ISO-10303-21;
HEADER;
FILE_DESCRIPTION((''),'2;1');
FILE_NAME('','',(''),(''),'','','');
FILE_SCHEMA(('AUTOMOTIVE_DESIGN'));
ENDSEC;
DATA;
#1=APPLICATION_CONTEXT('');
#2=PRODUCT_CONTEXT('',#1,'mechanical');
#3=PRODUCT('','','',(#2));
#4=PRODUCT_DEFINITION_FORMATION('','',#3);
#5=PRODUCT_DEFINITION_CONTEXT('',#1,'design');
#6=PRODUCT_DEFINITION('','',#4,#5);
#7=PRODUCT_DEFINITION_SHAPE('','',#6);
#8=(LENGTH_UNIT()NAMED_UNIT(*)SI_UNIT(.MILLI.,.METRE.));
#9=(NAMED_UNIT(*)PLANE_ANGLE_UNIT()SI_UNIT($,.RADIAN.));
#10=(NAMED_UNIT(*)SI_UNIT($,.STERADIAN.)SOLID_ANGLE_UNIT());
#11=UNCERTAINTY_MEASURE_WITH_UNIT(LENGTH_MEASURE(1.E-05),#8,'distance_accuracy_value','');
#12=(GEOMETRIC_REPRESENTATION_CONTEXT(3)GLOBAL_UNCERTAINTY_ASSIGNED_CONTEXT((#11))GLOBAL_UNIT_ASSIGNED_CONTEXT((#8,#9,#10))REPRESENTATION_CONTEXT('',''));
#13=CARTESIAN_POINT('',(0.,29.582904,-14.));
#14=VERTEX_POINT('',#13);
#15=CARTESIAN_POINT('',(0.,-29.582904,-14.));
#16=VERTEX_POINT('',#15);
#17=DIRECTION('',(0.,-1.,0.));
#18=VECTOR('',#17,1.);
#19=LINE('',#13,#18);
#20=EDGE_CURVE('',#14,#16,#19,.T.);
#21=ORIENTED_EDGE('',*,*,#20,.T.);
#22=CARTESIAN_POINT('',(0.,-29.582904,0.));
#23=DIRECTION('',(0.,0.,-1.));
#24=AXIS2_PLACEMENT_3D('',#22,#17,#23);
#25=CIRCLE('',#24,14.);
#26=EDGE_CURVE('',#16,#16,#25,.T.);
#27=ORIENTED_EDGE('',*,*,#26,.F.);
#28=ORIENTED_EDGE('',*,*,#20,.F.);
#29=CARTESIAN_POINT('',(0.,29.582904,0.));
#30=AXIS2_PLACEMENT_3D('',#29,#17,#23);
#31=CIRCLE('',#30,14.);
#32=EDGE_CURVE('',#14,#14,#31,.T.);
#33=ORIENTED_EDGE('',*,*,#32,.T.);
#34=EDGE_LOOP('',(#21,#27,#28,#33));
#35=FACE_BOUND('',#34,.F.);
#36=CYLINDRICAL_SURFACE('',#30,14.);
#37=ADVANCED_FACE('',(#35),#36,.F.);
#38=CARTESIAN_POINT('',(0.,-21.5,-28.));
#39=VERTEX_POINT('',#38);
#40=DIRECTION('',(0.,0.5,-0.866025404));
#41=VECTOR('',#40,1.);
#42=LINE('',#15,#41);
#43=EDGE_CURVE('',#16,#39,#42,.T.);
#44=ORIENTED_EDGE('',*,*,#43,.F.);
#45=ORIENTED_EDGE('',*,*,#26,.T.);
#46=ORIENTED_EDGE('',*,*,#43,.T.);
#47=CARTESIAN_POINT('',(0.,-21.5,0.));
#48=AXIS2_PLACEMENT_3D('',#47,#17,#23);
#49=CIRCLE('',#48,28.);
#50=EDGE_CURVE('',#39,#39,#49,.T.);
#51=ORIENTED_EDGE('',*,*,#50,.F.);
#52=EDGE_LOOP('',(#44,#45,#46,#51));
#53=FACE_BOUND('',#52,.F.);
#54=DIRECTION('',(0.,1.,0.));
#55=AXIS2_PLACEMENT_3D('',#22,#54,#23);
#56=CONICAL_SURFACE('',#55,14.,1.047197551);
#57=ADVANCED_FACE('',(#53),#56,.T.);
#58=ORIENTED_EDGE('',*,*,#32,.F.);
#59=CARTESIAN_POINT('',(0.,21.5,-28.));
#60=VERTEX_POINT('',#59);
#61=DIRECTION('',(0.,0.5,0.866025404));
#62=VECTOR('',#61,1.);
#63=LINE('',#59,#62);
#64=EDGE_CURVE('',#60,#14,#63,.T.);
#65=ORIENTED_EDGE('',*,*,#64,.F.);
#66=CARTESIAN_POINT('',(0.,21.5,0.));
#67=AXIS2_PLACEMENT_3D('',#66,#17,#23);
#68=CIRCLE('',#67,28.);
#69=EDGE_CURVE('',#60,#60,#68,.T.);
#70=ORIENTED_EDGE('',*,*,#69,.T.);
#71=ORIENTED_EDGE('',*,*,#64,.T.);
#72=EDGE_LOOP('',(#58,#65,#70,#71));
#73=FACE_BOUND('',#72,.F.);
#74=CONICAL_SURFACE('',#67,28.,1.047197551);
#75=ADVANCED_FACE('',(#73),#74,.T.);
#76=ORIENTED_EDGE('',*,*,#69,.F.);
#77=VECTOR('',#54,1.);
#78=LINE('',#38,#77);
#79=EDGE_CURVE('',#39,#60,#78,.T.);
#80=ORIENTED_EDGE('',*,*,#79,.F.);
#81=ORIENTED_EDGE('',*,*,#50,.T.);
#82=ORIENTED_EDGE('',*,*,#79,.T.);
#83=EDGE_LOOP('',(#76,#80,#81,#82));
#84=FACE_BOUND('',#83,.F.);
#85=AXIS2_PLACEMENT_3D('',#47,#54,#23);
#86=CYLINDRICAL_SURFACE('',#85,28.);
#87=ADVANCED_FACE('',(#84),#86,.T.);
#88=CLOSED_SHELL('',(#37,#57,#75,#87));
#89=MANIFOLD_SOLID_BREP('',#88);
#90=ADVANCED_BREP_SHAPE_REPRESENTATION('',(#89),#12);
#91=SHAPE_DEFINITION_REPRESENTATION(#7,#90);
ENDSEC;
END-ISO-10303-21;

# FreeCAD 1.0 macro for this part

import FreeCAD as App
import Part
import Sketcher
from FreeCAD import Vector
Q = App.Units.Quantity


def add_polygon(sketch, points):
    """Adds a closed chain of lines whose ends are joined by coincident constraints."""
    first, n = sketch.GeometryCount, len(points)
    for a, b in zip(points, points[1:] + points[:1]):
        sketch.addGeometry(Part.LineSegment(App.Vector(*a, 0), App.Vector(*b, 0)), False)
    for i in range(n):
        sketch.addConstraint(Sketcher.Constraint("Coincident", first + i, 2, first + (i + 1) % n, 1))

doc = App.newDocument("Part")
params = doc.addObject("Spreadsheet::Sheet", "Params")
for row, (alias, value) in enumerate([
    ("sketch1_width", "43 mm"),
    ("revolution_angle", "360 deg"),
], start=1):
    params.set(f"A{row}", alias)
    params.set(f"B{row}", "=" + value)
    params.setAlias(f"B{row}", alias)

body = doc.addObject("PartDesign::Body", "Body")

sketch1 = body.newObject("Sketcher::SketchObject", "Sketch")
sketch1.AttachmentSupport = (doc.getObject("YZ_Plane"), [""])
sketch1.MapMode = "FlatFace"
add_polygon(sketch1, [(30, -14), (-30, -14), (-22, -28), (22, -28)])
sketch1.addConstraint([
    Sketcher.Constraint("Horizontal", 0),
    Sketcher.Constraint("Horizontal", 2),
    Sketcher.Constraint("Equal", 1, 3),
    Sketcher.Constraint("DistanceX", 2, 1, 2, 2, Q("43 mm")),
    Sketcher.Constraint("Angle", 1, Q("-60 deg")),
    Sketcher.Constraint("DistanceY", 0, 2, -1, 1, Q("14 mm")),
    Sketcher.Constraint("DistanceY", 1, 2, -1, 1, Q("28 mm")),
    Sketcher.Constraint("DistanceX", 1, 2, -1, 1, Q("21.5 mm")),
])
sketch1.setExpression("Constraints[7]", "Params.sketch1_width")
revolution = body.newObject("PartDesign::Revolution", "Revolution")
revolution.Profile = sketch1
revolution.ReferenceAxis = (sketch1, ["H_Axis"])
revolution.setExpression("Angle", "Params.revolution_angle")

doc.recompute()
